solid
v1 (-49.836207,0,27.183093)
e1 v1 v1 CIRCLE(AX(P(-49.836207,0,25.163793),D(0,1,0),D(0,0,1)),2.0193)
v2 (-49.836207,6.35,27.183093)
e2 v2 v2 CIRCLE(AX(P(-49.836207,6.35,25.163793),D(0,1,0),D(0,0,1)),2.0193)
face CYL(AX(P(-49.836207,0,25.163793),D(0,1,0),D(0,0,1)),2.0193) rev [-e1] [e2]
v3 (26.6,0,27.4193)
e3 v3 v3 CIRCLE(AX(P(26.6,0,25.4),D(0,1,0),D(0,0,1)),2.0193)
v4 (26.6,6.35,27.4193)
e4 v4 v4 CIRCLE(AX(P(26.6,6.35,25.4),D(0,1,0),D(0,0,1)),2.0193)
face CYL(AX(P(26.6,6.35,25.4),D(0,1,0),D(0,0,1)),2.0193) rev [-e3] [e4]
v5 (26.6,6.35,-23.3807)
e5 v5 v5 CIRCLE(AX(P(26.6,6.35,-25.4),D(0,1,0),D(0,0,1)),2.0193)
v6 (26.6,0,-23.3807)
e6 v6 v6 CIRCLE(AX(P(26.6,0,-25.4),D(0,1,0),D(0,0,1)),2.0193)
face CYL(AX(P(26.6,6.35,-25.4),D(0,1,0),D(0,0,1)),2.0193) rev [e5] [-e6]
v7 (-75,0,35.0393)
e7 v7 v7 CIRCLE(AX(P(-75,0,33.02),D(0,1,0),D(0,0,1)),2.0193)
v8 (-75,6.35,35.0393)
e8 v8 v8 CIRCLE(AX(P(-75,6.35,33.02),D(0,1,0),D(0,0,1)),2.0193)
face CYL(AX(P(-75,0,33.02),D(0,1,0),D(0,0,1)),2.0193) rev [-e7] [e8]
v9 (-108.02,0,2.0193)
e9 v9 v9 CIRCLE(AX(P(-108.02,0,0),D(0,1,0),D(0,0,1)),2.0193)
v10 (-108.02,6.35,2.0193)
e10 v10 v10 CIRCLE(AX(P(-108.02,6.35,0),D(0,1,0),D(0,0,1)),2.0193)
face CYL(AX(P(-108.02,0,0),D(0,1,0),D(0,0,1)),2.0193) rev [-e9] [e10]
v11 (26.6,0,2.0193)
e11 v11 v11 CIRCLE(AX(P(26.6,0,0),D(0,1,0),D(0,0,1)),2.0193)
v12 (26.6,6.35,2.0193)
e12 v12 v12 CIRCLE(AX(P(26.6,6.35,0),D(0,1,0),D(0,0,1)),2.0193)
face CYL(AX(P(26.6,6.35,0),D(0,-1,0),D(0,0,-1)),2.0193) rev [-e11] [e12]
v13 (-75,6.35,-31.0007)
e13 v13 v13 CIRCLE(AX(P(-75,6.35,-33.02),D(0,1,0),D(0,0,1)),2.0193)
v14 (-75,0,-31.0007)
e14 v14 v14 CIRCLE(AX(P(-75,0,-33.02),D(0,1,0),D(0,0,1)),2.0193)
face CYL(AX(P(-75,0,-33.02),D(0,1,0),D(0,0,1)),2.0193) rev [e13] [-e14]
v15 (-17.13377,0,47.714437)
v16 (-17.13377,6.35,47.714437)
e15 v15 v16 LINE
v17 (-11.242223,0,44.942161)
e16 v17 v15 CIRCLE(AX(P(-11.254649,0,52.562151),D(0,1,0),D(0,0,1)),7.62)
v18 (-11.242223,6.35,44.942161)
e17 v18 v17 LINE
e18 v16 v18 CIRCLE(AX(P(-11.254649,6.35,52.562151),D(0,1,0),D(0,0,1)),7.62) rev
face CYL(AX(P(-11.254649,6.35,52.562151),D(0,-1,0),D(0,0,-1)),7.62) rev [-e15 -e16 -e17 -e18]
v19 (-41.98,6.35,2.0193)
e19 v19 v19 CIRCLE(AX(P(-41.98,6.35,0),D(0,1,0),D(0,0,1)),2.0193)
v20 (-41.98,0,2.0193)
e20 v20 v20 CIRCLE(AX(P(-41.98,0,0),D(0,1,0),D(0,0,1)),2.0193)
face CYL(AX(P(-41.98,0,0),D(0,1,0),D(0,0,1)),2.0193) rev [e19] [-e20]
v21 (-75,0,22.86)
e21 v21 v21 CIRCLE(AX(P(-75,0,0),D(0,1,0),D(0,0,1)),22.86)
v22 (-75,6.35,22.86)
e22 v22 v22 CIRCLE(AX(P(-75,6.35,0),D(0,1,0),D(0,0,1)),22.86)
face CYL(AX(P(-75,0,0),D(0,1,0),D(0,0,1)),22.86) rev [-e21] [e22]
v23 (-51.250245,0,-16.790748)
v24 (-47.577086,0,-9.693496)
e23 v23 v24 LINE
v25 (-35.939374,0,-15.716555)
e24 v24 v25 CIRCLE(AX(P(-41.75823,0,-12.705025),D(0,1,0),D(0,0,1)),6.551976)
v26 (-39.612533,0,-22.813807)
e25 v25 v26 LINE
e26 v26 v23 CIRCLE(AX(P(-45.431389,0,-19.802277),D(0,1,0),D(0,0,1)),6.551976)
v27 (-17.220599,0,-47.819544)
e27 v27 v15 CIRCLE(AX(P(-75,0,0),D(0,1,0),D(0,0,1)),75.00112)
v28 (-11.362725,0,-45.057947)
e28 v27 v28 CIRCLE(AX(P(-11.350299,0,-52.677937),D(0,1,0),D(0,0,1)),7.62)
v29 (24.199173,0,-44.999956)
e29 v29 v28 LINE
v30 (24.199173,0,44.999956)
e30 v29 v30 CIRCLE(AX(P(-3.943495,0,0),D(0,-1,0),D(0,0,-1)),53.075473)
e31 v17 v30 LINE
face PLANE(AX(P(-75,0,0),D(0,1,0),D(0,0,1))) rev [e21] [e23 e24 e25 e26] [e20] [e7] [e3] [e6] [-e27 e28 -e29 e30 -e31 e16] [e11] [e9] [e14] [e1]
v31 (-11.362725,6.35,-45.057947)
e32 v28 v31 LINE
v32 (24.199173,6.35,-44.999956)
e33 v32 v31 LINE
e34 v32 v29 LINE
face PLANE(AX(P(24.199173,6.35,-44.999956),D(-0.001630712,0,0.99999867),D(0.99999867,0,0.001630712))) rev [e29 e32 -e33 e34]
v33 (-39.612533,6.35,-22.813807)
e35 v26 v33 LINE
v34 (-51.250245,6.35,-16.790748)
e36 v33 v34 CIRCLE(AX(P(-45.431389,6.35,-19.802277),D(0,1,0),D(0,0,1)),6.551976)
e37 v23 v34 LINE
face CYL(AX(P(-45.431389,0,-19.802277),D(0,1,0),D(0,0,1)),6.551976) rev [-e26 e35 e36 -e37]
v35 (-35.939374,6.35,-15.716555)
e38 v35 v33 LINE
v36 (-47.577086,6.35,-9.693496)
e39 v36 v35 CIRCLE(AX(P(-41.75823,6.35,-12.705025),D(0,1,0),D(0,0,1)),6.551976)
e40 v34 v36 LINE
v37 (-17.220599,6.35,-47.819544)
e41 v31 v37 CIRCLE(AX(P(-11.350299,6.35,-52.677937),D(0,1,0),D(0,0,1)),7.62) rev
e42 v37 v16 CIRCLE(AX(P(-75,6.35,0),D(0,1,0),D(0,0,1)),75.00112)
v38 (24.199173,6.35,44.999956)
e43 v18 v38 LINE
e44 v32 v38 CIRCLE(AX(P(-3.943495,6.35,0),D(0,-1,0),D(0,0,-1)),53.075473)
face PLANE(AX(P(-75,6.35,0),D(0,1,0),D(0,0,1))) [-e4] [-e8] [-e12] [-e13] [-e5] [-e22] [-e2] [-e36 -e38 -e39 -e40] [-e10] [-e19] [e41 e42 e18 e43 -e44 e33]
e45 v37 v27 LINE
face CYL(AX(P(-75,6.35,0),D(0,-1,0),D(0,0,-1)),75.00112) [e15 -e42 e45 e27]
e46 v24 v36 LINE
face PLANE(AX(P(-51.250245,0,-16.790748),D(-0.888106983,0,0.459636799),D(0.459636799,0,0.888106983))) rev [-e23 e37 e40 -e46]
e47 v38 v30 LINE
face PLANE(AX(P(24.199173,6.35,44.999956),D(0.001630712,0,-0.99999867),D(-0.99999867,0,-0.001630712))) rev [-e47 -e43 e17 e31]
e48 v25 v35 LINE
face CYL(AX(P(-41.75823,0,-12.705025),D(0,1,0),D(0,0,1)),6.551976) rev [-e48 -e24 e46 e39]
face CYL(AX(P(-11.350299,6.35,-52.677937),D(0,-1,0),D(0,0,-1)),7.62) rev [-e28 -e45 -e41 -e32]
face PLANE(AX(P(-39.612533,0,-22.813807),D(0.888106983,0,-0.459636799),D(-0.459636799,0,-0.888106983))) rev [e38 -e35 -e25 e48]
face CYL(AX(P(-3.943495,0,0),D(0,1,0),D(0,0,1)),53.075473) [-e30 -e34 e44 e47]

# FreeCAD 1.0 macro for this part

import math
import FreeCAD as App
import Part
import Sketcher

V = App.Vector
Q = App.Units.Quantity


def edges_at(feature, points):
    """Names of the edges that pass closest to the given points."""
    edges = feature.Shape.Edges
    near = lambda p: min(range(len(edges)), key=lambda i: edges[i].distToShape(Part.Vertex(*p))[0])
    return sorted({f"Edge{near(p) + 1}" for p in points})

doc = App.newDocument("Part")
params = doc.addObject("Spreadsheet::Sheet", "Params")
for row, (alias, value) in enumerate([
    ("sketch1_diameter", "0.159 in"),
    ("pad1_length", "0.25 in"),
    ("sketch2_diameter", "1.8 in"),
    ("sketch2_diameter2", "0.159 in"),
    ("pocket1_length", "0.25 in"),
    ("fillet_radius", "0.3 in"),
    ("sketch3_diameter", "0.159 in"),
    ("hole_diameter", "0.159 in"),
], start=1):
    params.set(f"A{row}", alias)
    params.set(f"B{row}", "=" + value)
    params.setAlias(f"B{row}", alias)

body = doc.addObject("PartDesign::Body", "Body")

sketch1 = body.newObject("Sketcher::SketchObject", "Sketch")
sketch1.AttachmentSupport = (doc.getObject("XZ_Plane"), [""])
sketch1.MapMode = "FlatFace"
sketch1.addGeometry([
    Part.LineSegment(V(-15, 44.9, 0), V(24.2, 45, 0)),
    Part.ArcOfCircle(Part.Circle(V(26.6, 0, 0), V(0, 0, 1), 45.1), math.radians(-93), math.radians(93)),
    Part.LineSegment(V(24.2, -45, 0), V(-15, -45.1, 0)),
    Part.ArcOfCircle(Part.Circle(V(-75, 0, 0), V(0, 0, 1), 75), math.radians(37), math.radians(323)),
    Part.Circle(V(26.6, 0, 0), V(0, 0, 1), 2),
], False)
sketch1.addConstraint([
    Sketcher.Constraint("Coincident", 0, 2, 1, 2),
    Sketcher.Constraint("Coincident", 1, 1, 2, 1),
    Sketcher.Constraint("Coincident", 2, 2, 3, 2),
    Sketcher.Constraint("Coincident", 3, 1, 0, 1),
    Sketcher.Constraint("Coincident", 4, 3, 1, 3),
    Sketcher.Constraint("Symmetric", 0, 2, 1, 1, -1),
    Sketcher.Constraint("PointOnObject", 3, 3, -1),
    Sketcher.Constraint("Parallel", 0, 2),
    Sketcher.Constraint("Diameter", 4, Q("0.159 in")),
    Sketcher.Constraint("DistanceX", 3, 3, 1, 3, Q("4 in")),
    Sketcher.Constraint("Radius", 3, Q("2.9528 in")),
    Sketcher.Constraint("Radius", 1, 45.063955),
    Sketcher.Constraint("DistanceX", -1, 1, 1, 3, 26.6),
    Sketcher.Constraint("DistanceY", 2, 2, 1, 1, 0.063999),
    Sketcher.Constraint("DistanceX", 2, 2, -1, 1, 15.046618),
])
sketch1.setExpression("Constraints[8]", "Params.sketch1_diameter")
pad1 = body.newObject("PartDesign::Pad", "Pad")
pad1.Profile = sketch1
pad1.setExpression("Length", "Params.pad1_length")
pad1.Reversed = True

sketch2 = body.newObject("Sketcher::SketchObject", "Sketch001")
sketch2.AttachmentSupport = (doc.getObject("XZ_Plane"), [""])
sketch2.MapMode = "FlatFace"
sketch2.AttachmentOffset = App.Placement(V(0, 0, -0.25 * 25.4), App.Rotation())
sketch2.addGeometry([
    Part.Circle(V(-75, 0, 0), V(0, 0, 1), 22.9),
    Part.Circle(V(-49.8, 25.2, 0), V(0, 0, 1), 2),
    Part.Circle(V(-42, 0, 0), V(0, 0, 1), 2),
    Part.Circle(V(-75, 33, 0), V(0, 0, 1), 2),
    Part.Circle(V(-108, 0, 0), V(0, 0, 1), 2),
    Part.Circle(V(-75, -33, 0), V(0, 0, 1), 2),
], False)
sketch2.addConstraint([
    Sketcher.Constraint("Equal", 1, 2),
    Sketcher.Constraint("Equal", 2, 3),
    Sketcher.Constraint("Equal", 3, 4),
    Sketcher.Constraint("Equal", 4, 5),
    Sketcher.Constraint("Symmetric", 3, 3, 5, 3, -1),
    Sketcher.Constraint("PointOnObject", 0, 3, -1),
    Sketcher.Constraint("PointOnObject", 2, 3, -1),
    Sketcher.Constraint("PointOnObject", 4, 3, -1),
    Sketcher.Constraint("Vertical", 0, 3, 3, 3),
    Sketcher.Constraint("Diameter", 0, Q("1.8 in")),
    Sketcher.Constraint("Diameter", 1, Q("0.159 in")),
    Sketcher.Constraint("DistanceY", -1, 1, 3, 3, Q("1.3 in")),
    Sketcher.Constraint("DistanceX", 0, 3, 2, 3, Q("1.3 in")),
    Sketcher.Constraint("DistanceX", 4, 3, 0, 3, Q("1.3 in")),
    Sketcher.Constraint("DistanceX", 0, 3, -1, 1, 75.0),
    Sketcher.Constraint("DistanceX", 1, 3, -1, 1, 49.836207),
    Sketcher.Constraint("DistanceY", -1, 1, 1, 3, 25.163793),
])
sketch2.setExpression("Constraints[9]", "Params.sketch2_diameter")
sketch2.setExpression("Constraints[10]", "Params.sketch2_diameter2")
pocket1 = body.newObject("PartDesign::Pocket", "Pocket")
pocket1.Profile = sketch2
pocket1.setExpression("Length", "Params.pocket1_length")
pocket1.Reversed = True
doc.recompute()

fillet = body.newObject("PartDesign::Fillet", "Fillet")
fillet.Base = (pocket1, edges_at(pocket1, [(-15.047, 3.175, -45.064), (-14.951, 3.175, 44.936)]))
fillet.setExpression("Radius", "Params.fillet_radius")

sketch3 = body.newObject("Sketcher::SketchObject", "Sketch002")
sketch3.AttachmentSupport = (doc.getObject("XZ_Plane"), [""])
sketch3.MapMode = "FlatFace"
sketch3.AttachmentOffset = App.Placement(V(0, 0, -0.25 * 25.4), App.Rotation())
sketch3.addGeometry([
    Part.Circle(V(26.6, -25.4, 0), V(0, 0, 1), 2),
    Part.Circle(V(26.6, 25.4, 0), V(0, 0, 1), 2),
], False)
sketch3.addConstraint([
    Sketcher.Constraint("Equal", 0, 1),
    Sketcher.Constraint("Symmetric", 0, 3, 1, 3, -1),
    Sketcher.Constraint("Diameter", 0, Q("0.159 in")),
    Sketcher.Constraint("DistanceY", 0, 3, -1, 1, Q("1 in")),
    Sketcher.Constraint("DistanceX", -1, 1, 0, 3, 26.6),
])
sketch3.setExpression("Constraints[2]", "Params.sketch3_diameter")
doc.recompute()
hole = body.newObject("PartDesign::Hole", "Hole")
hole.Profile = sketch3
hole.ThreadType = "None"
hole.setExpression("Diameter", "Params.hole_diameter")
hole.DepthType = "ThroughAll"
hole.Reversed = True

sketch4 = body.newObject("Sketcher::SketchObject", "Sketch003")
sketch4.AttachmentSupport = (doc.getObject("XZ_Plane"), [""])
sketch4.MapMode = "FlatFace"
sketch4.AttachmentOffset = App.Placement(V(0, 0, -0.25 * 25.4), App.Rotation())
sketch4.addGeometry([
    Part.ArcOfCircle(Part.Circle(V(-4, 0, 0), V(0, 0, 1), 53), math.radians(-58), math.radians(58)),
    Part.ArcOfCircle(Part.Circle(V(27, 0, 0), V(0, 0, 1), 45), math.radians(-93), math.radians(93)),
], False)
sketch4.addConstraint([
    Sketcher.Constraint("Coincident", 0, 1, 1, 1),
    Sketcher.Constraint("Coincident", 1, 2, 0, 2),
    Sketcher.Constraint("Symmetric", 0, 1, 1, 2, -1),
    Sketcher.Constraint("Radius", 0, 53.075473),
    Sketcher.Constraint("Radius", 1, 45.063955),
    Sketcher.Constraint("DistanceX", 0, 3, 1, 3, Q("1.2024998 in")),
    Sketcher.Constraint("DistanceX", -1, 1, 1, 3, 26.6),
])
pocket2 = body.newObject("PartDesign::Pocket", "Pocket001")
pocket2.Profile = sketch4
pocket2.Type = "ThroughAll"
pocket2.Reversed = True

sketch5 = body.newObject("Sketcher::SketchObject", "Sketch004")
sketch5.AttachmentSupport = (doc.getObject("XZ_Plane"), [""])
sketch5.MapMode = "FlatFace"
sketch5.AttachmentOffset = App.Placement(V(0, 0, -0.25 * 25.4), App.Rotation())
sketch5.addGeometry([
    Part.LineSegment(V(-36, -16, 0), V(-40, -23, 0)),
    Part.ArcOfCircle(Part.Circle(V(-45, -20, 0), V(0, 0, 1), 7), math.radians(153), math.radians(333)),
    Part.LineSegment(V(-51, -17, 0), V(-48, -10, 0)),
    Part.ArcOfCircle(Part.Circle(V(-42, -13, 0), V(0, 0, 1), 7), math.radians(-27), math.radians(153)),
], False)
sketch5.addConstraint([
    Sketcher.Constraint("Tangent", 0, 2, 1, 2),
    Sketcher.Constraint("Tangent", 1, 1, 2, 1),
    Sketcher.Constraint("Tangent", 2, 2, 3, 2),
    Sketcher.Constraint("Tangent", 3, 1, 0, 1),
    Sketcher.Constraint("Equal", 1, 3),
    Sketcher.Constraint("Radius", 1, 6.551976),
    Sketcher.Constraint("DistanceX", 1, 3, -1, 1, 45.431389),
    Sketcher.Constraint("DistanceX", 3, 3, -1, 1, 41.75823),
    Sketcher.Constraint("DistanceY", 1, 3, 3, 3, 7.097252),
    Sketcher.Constraint("DistanceY", 1, 3, -1, 1, 19.802277),
])
pocket3 = body.newObject("PartDesign::Pocket", "Pocket002")
pocket3.Profile = sketch5
pocket3.Type = "ThroughAll"
pocket3.Reversed = True

doc.recompute()
